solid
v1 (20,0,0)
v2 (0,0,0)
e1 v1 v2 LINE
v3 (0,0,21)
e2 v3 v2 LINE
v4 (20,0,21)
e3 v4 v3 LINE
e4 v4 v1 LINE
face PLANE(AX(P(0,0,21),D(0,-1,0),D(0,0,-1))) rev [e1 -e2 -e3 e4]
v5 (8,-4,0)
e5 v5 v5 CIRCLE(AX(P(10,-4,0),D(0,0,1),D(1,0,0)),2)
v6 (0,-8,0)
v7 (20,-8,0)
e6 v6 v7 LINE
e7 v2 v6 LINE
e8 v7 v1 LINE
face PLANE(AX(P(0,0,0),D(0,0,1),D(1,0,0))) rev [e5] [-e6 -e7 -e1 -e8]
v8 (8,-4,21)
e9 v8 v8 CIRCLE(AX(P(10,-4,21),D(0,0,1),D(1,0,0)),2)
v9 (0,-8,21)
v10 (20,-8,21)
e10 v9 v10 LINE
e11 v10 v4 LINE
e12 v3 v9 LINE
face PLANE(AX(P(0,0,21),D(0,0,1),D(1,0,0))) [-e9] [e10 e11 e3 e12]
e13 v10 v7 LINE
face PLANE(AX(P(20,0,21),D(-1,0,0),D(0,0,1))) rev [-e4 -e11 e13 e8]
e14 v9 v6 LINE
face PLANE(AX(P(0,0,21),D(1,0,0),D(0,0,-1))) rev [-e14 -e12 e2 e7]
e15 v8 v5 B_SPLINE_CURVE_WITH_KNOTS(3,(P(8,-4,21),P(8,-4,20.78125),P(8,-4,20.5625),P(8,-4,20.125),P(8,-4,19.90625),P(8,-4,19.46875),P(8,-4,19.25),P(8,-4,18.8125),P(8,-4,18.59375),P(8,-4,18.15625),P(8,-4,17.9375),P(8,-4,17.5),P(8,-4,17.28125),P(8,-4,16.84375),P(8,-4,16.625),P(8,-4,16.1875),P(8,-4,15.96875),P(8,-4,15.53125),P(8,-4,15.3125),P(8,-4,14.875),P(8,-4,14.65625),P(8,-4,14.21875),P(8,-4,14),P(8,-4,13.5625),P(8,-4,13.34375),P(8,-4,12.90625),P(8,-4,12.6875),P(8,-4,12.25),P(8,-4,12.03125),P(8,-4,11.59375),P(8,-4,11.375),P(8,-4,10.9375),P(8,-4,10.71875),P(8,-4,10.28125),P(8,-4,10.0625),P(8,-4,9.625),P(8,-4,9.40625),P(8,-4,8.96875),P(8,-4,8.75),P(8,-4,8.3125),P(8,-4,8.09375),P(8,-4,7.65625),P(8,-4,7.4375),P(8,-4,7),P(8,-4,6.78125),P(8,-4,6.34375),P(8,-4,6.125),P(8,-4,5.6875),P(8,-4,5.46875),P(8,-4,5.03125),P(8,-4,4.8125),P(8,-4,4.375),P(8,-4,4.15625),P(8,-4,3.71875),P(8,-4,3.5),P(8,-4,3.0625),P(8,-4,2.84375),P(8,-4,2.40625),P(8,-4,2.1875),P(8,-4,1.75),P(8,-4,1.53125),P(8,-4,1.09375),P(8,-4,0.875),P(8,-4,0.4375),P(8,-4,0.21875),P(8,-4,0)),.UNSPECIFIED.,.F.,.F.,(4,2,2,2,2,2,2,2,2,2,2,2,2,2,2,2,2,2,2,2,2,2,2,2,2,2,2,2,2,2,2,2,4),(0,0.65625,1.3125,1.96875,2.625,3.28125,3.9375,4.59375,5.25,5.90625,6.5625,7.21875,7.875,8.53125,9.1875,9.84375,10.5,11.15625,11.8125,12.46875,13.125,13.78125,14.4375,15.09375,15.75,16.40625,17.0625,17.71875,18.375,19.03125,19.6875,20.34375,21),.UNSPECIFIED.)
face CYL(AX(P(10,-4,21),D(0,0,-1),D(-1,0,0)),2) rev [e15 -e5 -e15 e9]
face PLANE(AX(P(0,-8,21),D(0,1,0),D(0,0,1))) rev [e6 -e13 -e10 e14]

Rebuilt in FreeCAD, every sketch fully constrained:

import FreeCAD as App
import Part
import Sketcher
from FreeCAD import Vector


def add_polygon(sketch, points):
    """Adds a closed chain of lines whose ends are joined by coincident constraints."""
    first, n = sketch.GeometryCount, len(points)
    for a, b in zip(points, points[1:] + points[:1]):
        sketch.addGeometry(Part.LineSegment(App.Vector(*a, 0), App.Vector(*b, 0)), False)
    for i in range(n):
        sketch.addConstraint(Sketcher.Constraint("Coincident", first + i, 2, first + (i + 1) % n, 1))

doc = App.newDocument("Part")
params = doc.addObject("Spreadsheet::Sheet", "Params")
for row, (alias, value) in enumerate([
    ("sketch1_diameter", "4 mm"),
    ("sketch1_width", "20 mm"),
    ("sketch1_height", "8 mm"),
    ("pad1_length", "21 mm"),
], start=1):
    params.set(f"A{row}", alias)
    params.set(f"B{row}", "=" + value)
    params.setAlias(f"B{row}", alias)

body = doc.addObject("PartDesign::Body", "Body")

# Sketch on XY plane
sketch1 = body.newObject("Sketcher::SketchObject", "Sketch")
sketch1.AttachmentSupport = (doc.getObject("XY_Plane"), [""])
sketch1.MapMode = "FlatFace"
add_polygon(sketch1, [(0, 0), (0, -8), (20, -8), (20, 0)])  # lines 0-3
sketch1.addGeometry(Part.Circle(Vector(10, -4, 0), Vector(0, 0, 1), 2), False)  # 4
sketch1.addConstraint([
    Sketcher.Constraint("Vertical", 0),
    Sketcher.Constraint("Horizontal", 1),
    Sketcher.Constraint("Vertical", 2),
    Sketcher.Constraint("Horizontal", 3),
    Sketcher.Constraint("Coincident", 3, 2, -1, 1),
    Sketcher.Constraint("Diameter", 4, 4.0),
    Sketcher.Constraint("DistanceX", 1, 1, 1, 2, 20.0),
    Sketcher.Constraint("DistanceY", 0, 2, 0, 1, 8.0),
    Sketcher.Constraint("DistanceX", -1, 1, 4, 3, 10.0),
    Sketcher.Constraint("DistanceY", 4, 3, -1, 1, 4.0),
])
sketch1.setExpression("Constraints[9]", "Params.sketch1_diameter")
sketch1.setExpression("Constraints[10]", "Params.sketch1_width")
sketch1.setExpression("Constraints[11]", "Params.sketch1_height")
pad1 = body.newObject("PartDesign::Pad", "Pad")
pad1.Profile = sketch1
pad1.setExpression("Length", "Params.pad1_length")

doc.recompute()
